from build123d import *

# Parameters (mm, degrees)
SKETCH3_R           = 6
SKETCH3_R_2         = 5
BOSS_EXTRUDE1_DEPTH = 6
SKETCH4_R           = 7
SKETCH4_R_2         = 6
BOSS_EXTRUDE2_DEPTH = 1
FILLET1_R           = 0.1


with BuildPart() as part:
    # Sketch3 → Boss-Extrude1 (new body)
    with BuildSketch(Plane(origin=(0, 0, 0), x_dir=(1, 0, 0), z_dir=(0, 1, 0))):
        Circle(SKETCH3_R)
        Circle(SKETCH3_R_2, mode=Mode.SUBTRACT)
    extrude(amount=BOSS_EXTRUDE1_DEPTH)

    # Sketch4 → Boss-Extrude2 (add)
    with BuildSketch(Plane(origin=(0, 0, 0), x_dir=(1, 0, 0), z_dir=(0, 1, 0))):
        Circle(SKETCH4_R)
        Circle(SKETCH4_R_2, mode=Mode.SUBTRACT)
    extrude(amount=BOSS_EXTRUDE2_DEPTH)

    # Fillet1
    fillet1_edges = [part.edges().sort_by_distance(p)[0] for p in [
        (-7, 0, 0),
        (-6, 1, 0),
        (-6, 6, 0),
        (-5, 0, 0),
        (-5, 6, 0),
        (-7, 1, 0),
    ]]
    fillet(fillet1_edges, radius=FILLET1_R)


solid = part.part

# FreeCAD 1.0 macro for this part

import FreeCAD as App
import Part
import Sketcher
from FreeCAD import Vector
Q = App.Units.Quantity


def edges_at(feature, points):
    """Names of the edges that pass closest to the given points."""
    edges = feature.Shape.Edges
    near = lambda p: min(range(len(edges)), key=lambda i: edges[i].distToShape(Part.Vertex(*p))[0])
    return sorted({f"Edge{near(p) + 1}" for p in points})

doc = App.newDocument("Part")
body = doc.addObject("PartDesign::Body", "Body")

sketch1 = doc.addObject("Sketcher::SketchObject", "Sketch")
body.addObject(sketch1)
sketch1.AttachmentSupport = (doc.XZ_Plane, [""])
sketch1.MapMode = "FlatFace"
sketch1.addGeometry([
    Part.Circle(Vector(0, 0, 0), Vector(0, 0, 1), 6),
    Part.Circle(Vector(0, 0, 0), Vector(0, 0, 1), 5),
], False)
sketch1.addConstraint([
    Sketcher.Constraint("Coincident", 0, 3, -1, 1),
    Sketcher.Constraint("Coincident", 1, 3, -1, 1),
    Sketcher.Constraint("Diameter", 0, Q("12 mm")),
    Sketcher.Constraint("Diameter", 1, Q("10 mm")),
])
pad1 = doc.addObject("PartDesign::Pad", "Pad")
body.addObject(pad1)
pad1.Profile = sketch1
pad1.Length = 6
pad1.Reversed = True

sketch2 = doc.addObject("Sketcher::SketchObject", "Sketch001")
body.addObject(sketch2)
sketch2.AttachmentSupport = (doc.XZ_Plane, [""])
sketch2.MapMode = "FlatFace"
sketch2.addGeometry([
    Part.Circle(Vector(0, 0, 0), Vector(0, 0, 1), 7),
    Part.Circle(Vector(0, 0, 0), Vector(0, 0, 1), 6),
], False)
sketch2.addConstraint([
    Sketcher.Constraint("Coincident", 0, 3, -1, 1),
    Sketcher.Constraint("Coincident", 1, 3, -1, 1),
    Sketcher.Constraint("Diameter", 0, Q("14 mm")),
    Sketcher.Constraint("Diameter", 1, Q("12 mm")),
])
pad2 = doc.addObject("PartDesign::Pad", "Pad001")
body.addObject(pad2)
pad2.Profile = sketch2
pad2.Length = 1
pad2.Reversed = True
doc.recompute()

fillet = doc.addObject("PartDesign::Fillet", "Fillet")
body.addObject(fillet)
fillet.Base = (pad2, edges_at(pad2, [
    (-7, 0, 0),
    (-6, 1, 0),
    (-6, 6, 0),
    (-5, 0, 0),
    (-5, 6, 0),
    (-7, 1, 0),
]))
fillet.Radius = 0.1

doc.recompute()
